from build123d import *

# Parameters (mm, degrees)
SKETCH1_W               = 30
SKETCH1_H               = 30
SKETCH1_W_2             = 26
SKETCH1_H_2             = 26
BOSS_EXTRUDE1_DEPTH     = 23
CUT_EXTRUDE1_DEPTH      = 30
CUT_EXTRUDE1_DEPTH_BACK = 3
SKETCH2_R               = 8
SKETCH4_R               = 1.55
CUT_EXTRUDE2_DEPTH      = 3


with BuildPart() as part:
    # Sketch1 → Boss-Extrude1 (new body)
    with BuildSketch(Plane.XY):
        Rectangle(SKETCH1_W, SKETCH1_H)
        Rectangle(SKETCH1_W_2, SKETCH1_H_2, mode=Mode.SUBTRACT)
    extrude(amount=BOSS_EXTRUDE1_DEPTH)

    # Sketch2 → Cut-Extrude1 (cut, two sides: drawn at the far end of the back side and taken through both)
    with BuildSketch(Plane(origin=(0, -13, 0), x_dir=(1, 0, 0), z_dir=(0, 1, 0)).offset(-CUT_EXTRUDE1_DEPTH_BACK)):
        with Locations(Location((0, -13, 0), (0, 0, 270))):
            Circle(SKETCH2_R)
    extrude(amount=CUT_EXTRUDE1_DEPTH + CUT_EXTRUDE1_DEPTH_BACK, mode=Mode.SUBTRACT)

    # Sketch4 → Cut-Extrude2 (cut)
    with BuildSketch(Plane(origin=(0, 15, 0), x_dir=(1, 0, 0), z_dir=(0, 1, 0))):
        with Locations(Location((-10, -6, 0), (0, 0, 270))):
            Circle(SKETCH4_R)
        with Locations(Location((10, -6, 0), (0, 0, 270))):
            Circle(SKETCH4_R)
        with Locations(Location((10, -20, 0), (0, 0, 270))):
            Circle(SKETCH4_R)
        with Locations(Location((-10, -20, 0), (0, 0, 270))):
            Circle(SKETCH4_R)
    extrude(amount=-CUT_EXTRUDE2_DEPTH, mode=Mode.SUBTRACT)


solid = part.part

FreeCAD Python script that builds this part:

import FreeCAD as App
import Part
import Sketcher

doc = App.newDocument("Part")
body = doc.addObject("PartDesign::Body", "Body")

# Sketch on XY plane
sketch1 = doc.addObject("Sketcher::SketchObject", "Sketch")
body.addObject(sketch1)
sketch1.AttachmentSupport = (doc.XY_Plane, [""])
sketch1.MapMode = "FlatFace"
sketch1.addGeometry(Part.LineSegment(App.Vector(-15, 15, 0), App.Vector(-15, -15, 0)), False)
sketch1.addGeometry(Part.LineSegment(App.Vector(-15, -15, 0), App.Vector(15, -15, 0)), False)
sketch1.addGeometry(Part.LineSegment(App.Vector(15, -15, 0), App.Vector(15, 15, 0)), False)
sketch1.addGeometry(Part.LineSegment(App.Vector(15, 15, 0), App.Vector(-15, 15, 0)), False)
sketch1.addGeometry(Part.LineSegment(App.Vector(13, -13, 0), App.Vector(-13, -13, 0)), False)
sketch1.addGeometry(Part.LineSegment(App.Vector(-13, -13, 0), App.Vector(-13, 13, 0)), False)
sketch1.addGeometry(Part.LineSegment(App.Vector(-13, 13, 0), App.Vector(13, 13, 0)), False)
sketch1.addGeometry(Part.LineSegment(App.Vector(13, 13, 0), App.Vector(13, -13, 0)), False)
sketch1.addConstraint(Sketcher.Constraint("Coincident", 0, 2, 1, 1))
sketch1.addConstraint(Sketcher.Constraint("Coincident", 1, 2, 2, 1))
sketch1.addConstraint(Sketcher.Constraint("Coincident", 2, 2, 3, 1))
sketch1.addConstraint(Sketcher.Constraint("Coincident", 3, 2, 0, 1))
sketch1.addConstraint(Sketcher.Constraint("Coincident", 4, 2, 5, 1))
sketch1.addConstraint(Sketcher.Constraint("Coincident", 5, 2, 6, 1))
sketch1.addConstraint(Sketcher.Constraint("Coincident", 6, 2, 7, 1))
sketch1.addConstraint(Sketcher.Constraint("Coincident", 7, 2, 4, 1))
sketch1.addConstraint(Sketcher.Constraint("Vertical", 0))
sketch1.addConstraint(Sketcher.Constraint("Horizontal", 1))
sketch1.addConstraint(Sketcher.Constraint("Vertical", 2))
sketch1.addConstraint(Sketcher.Constraint("Horizontal", 3))
sketch1.addConstraint(Sketcher.Constraint("Horizontal", 4))
sketch1.addConstraint(Sketcher.Constraint("Vertical", 5))
sketch1.addConstraint(Sketcher.Constraint("Horizontal", 6))
sketch1.addConstraint(Sketcher.Constraint("Vertical", 7))
sketch1.addConstraint(Sketcher.Constraint("Symmetric", 0, 2, 2, 2, -1, 1))
sketch1.addConstraint(Sketcher.Constraint("Symmetric", 4, 2, 6, 2, -1, 1))
sketch1.addConstraint(Sketcher.Constraint("Equal", 3, 0))
sketch1.addConstraint(Sketcher.Constraint("Equal", 6, 5))
sketch1.addConstraint(Sketcher.Constraint("DistanceX", 1, 1, 1, 2, 30.0))
sketch1.addConstraint(Sketcher.Constraint("DistanceX", 4, 2, 4, 1, 26.0))
pad1 = doc.addObject("PartDesign::Pad", "Pad")
body.addObject(pad1)
pad1.Profile = sketch1
pad1.Length = 23

# Sketch on XZ plane
sketch2 = doc.addObject("Sketcher::SketchObject", "Sketch001")
body.addObject(sketch2)
sketch2.AttachmentSupport = (doc.XZ_Plane, [""])
sketch2.MapMode = "FlatFace"
sketch2.AttachmentOffset = App.Placement(App.Vector(0, 0, 13), App.Rotation())
sketch2.addGeometry(Part.Circle(App.Vector(0, 13, 0), App.Vector(0, 0, 1), 8), False)
sketch2.addConstraint(Sketcher.Constraint("PointOnObject", 0, 3, -2))
sketch2.addConstraint(Sketcher.Constraint("Diameter", 0, 16.0))
sketch2.addConstraint(Sketcher.Constraint("DistanceY", -1, 1, 0, 3, 13.0))
pocket1 = doc.addObject("PartDesign::Pocket", "Pocket")
body.addObject(pocket1)
pocket1.Profile = sketch2
pocket1.Type = "ThroughAll"
pocket1.Midplane = True

# Sketch on XZ plane
sketch3 = doc.addObject("Sketcher::SketchObject", "Sketch002")
body.addObject(sketch3)
sketch3.AttachmentSupport = (doc.XZ_Plane, [""])
sketch3.MapMode = "FlatFace"
sketch3.AttachmentOffset = App.Placement(App.Vector(0, 0, -15), App.Rotation())
sketch3.addGeometry(Part.Circle(App.Vector(-10, 6, 0), App.Vector(0, 0, 1), 1.6), False)
sketch3.addGeometry(Part.Circle(App.Vector(10, 6, 0), App.Vector(0, 0, 1), 1.6), False)
sketch3.addGeometry(Part.Circle(App.Vector(10, 20, 0), App.Vector(0, 0, 1), 1.6), False)
sketch3.addGeometry(Part.Circle(App.Vector(-10, 20, 0), App.Vector(0, 0, 1), 1.6), False)
sketch3.addConstraint(Sketcher.Constraint("Equal", 0, 1))
sketch3.addConstraint(Sketcher.Constraint("Equal", 1, 2))
sketch3.addConstraint(Sketcher.Constraint("Equal", 2, 3))
sketch3.addConstraint(Sketcher.Constraint("Symmetric", 0, 3, 1, 3, -2))
sketch3.addConstraint(Sketcher.Constraint("Symmetric", 2, 3, 3, 3, -2))
sketch3.addConstraint(Sketcher.Constraint("Vertical", 1, 3, 2, 3))
sketch3.addConstraint(Sketcher.Constraint("Diameter", 0, 3.1))
sketch3.addConstraint(Sketcher.Constraint("DistanceX", 0, 3, -1, 1, 10.0))
sketch3.addConstraint(Sketcher.Constraint("DistanceY", -1, 1, 0, 3, 6.0))
sketch3.addConstraint(Sketcher.Constraint("DistanceY", -1, 1, 2, 3, 20.0))
pocket2 = doc.addObject("PartDesign::Pocket", "Pocket001")
body.addObject(pocket2)
pocket2.Profile = sketch3
pocket2.Length = 3
pocket2.Reversed = True

doc.recompute()
